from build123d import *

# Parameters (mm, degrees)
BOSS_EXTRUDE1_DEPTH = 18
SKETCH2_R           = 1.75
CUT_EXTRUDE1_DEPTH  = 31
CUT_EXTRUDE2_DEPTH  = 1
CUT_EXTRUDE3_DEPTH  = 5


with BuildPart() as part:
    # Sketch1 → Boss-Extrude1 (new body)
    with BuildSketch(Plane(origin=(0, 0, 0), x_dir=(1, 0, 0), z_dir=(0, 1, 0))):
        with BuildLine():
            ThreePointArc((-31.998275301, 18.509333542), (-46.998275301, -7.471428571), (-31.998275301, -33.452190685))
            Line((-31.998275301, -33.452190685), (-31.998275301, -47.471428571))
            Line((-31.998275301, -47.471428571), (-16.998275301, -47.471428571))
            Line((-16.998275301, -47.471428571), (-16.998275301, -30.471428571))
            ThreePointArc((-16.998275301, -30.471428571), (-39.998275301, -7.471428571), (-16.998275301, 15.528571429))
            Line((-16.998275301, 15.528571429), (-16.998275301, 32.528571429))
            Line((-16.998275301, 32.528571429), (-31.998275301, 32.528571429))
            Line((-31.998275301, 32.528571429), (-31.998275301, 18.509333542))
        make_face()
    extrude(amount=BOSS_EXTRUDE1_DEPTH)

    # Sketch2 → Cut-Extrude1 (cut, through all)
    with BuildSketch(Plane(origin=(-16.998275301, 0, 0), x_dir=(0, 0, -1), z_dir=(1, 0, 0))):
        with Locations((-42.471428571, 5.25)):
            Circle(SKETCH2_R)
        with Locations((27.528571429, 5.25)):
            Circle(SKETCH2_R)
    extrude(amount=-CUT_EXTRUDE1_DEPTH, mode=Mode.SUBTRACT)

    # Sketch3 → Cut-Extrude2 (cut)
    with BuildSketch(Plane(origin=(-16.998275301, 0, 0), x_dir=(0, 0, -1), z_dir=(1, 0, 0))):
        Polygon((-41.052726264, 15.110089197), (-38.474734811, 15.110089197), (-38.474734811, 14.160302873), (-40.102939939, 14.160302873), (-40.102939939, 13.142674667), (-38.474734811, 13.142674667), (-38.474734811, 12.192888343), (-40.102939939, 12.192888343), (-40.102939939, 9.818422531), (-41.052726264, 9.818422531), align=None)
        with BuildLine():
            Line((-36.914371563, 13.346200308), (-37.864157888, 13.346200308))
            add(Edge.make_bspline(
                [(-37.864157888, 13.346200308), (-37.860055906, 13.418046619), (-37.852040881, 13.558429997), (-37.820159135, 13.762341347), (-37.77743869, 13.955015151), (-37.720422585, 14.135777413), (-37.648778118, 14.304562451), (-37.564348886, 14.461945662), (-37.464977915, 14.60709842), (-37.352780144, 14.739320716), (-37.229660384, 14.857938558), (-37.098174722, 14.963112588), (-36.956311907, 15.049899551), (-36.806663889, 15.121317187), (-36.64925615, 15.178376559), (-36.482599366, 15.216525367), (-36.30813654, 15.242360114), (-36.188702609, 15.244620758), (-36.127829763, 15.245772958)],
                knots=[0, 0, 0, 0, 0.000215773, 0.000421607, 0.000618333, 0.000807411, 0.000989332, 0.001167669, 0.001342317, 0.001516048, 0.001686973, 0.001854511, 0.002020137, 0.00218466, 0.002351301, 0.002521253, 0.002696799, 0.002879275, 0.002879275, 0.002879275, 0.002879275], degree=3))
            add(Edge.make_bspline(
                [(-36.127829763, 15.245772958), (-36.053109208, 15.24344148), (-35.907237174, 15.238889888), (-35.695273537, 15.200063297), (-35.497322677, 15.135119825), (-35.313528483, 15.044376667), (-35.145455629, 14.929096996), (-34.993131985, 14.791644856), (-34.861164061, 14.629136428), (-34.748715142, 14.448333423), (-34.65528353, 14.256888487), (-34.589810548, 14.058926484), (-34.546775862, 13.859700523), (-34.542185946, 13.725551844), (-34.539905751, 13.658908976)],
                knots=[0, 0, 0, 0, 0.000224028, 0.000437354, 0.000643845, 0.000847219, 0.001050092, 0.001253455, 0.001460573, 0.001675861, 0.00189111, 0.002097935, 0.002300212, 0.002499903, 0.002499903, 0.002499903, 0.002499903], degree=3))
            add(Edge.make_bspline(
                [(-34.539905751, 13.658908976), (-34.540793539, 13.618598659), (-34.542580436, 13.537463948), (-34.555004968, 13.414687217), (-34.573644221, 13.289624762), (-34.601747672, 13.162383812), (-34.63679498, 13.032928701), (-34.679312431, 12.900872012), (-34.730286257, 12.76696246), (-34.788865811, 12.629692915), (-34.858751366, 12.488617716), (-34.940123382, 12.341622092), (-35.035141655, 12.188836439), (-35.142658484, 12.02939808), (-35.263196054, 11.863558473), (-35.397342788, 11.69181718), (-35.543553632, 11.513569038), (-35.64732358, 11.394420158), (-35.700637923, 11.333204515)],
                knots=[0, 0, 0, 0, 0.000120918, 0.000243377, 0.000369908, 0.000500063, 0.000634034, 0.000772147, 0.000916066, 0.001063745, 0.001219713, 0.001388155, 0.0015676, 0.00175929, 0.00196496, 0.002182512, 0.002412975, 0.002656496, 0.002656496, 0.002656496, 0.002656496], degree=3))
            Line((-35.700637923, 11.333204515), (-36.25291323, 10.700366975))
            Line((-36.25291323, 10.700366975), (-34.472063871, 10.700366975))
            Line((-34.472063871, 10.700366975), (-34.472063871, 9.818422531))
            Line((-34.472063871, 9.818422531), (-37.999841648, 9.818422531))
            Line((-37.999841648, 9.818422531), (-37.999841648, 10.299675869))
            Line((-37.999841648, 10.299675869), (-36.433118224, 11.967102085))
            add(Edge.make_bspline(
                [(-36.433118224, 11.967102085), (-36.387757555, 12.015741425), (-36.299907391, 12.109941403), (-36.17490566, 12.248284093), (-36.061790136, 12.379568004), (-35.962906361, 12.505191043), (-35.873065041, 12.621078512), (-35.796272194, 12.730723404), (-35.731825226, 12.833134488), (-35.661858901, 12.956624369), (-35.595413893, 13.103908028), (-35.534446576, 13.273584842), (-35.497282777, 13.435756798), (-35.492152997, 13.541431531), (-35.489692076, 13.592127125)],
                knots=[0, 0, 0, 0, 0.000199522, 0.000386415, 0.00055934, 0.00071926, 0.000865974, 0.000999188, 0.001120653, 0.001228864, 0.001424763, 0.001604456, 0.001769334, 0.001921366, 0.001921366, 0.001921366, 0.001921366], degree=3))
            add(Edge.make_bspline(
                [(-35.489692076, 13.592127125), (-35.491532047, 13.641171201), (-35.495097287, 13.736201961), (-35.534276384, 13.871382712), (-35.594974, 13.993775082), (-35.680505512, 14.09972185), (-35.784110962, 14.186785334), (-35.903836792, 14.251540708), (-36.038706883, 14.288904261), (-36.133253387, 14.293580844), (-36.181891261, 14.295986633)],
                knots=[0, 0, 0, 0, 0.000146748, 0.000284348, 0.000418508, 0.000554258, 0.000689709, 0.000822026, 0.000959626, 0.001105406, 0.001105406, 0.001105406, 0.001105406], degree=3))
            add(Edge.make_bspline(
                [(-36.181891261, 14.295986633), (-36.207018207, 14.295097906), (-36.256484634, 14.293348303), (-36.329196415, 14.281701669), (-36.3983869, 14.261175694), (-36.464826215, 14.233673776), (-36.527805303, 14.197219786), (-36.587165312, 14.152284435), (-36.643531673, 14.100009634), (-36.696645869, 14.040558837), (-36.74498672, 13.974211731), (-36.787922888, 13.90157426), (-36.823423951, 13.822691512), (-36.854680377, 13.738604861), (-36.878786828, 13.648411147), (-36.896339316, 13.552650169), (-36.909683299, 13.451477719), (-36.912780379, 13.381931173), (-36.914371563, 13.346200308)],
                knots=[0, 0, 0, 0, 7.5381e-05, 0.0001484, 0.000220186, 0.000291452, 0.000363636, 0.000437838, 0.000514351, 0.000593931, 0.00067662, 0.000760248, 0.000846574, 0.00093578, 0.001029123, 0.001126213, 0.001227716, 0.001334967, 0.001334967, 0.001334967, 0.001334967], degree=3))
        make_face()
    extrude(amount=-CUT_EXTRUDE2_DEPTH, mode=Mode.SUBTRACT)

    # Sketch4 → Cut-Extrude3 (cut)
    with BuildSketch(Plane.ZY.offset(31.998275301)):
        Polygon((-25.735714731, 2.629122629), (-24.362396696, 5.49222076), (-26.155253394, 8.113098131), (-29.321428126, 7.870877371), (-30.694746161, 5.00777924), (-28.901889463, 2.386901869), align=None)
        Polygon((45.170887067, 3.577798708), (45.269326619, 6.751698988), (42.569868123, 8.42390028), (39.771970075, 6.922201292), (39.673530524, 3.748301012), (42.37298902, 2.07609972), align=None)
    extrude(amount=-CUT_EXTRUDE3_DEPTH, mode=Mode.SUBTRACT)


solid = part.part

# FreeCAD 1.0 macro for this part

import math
import FreeCAD as App
import Part
import Sketcher

V = App.Vector
Q = App.Units.Quantity

doc = App.newDocument("Part")
body = doc.addObject("PartDesign::Body", "Body")

# Sketch on XZ plane
sketch1 = doc.addObject("Sketcher::SketchObject", "Sketch")
body.addObject(sketch1)
sketch1.AttachmentSupport = (doc.XZ_Plane, [""])
sketch1.MapMode = "FlatFace"
sketch1.addGeometry(Part.ArcOfCircle(Part.Circle(V(-17, 7, 0), V(0, 0, 1), 30), math.radians(120), math.radians(240)), False)
sketch1.addGeometry(Part.LineSegment(V(-32, 33, 0), V(-32, 47, 0)), False)
sketch1.addGeometry(Part.LineSegment(V(-32, 47, 0), V(-17, 47, 0)), False)
sketch1.addGeometry(Part.LineSegment(V(-17, 47, 0), V(-17, 30, 0)), False)
sketch1.addGeometry(Part.ArcOfCircle(Part.Circle(V(-17, 7, 0), V(0, 0, 1), 23), math.radians(90), math.radians(270)), False)
sketch1.addGeometry(Part.LineSegment(V(-17, -16, 0), V(-17, -33, 0)), False)
sketch1.addGeometry(Part.LineSegment(V(-17, -33, 0), V(-32, -33, 0)), False)
sketch1.addGeometry(Part.LineSegment(V(-32, -33, 0), V(-32, -19, 0)), False)
sketch1.addConstraint(Sketcher.Constraint("Coincident", 0, 1, 1, 1))
sketch1.addConstraint(Sketcher.Constraint("Coincident", 1, 2, 2, 1))
sketch1.addConstraint(Sketcher.Constraint("Coincident", 2, 2, 3, 1))
sketch1.addConstraint(Sketcher.Constraint("Coincident", 3, 2, 4, 1))
sketch1.addConstraint(Sketcher.Constraint("Coincident", 4, 2, 5, 1))
sketch1.addConstraint(Sketcher.Constraint("Coincident", 5, 2, 6, 1))
sketch1.addConstraint(Sketcher.Constraint("Coincident", 6, 2, 7, 1))
sketch1.addConstraint(Sketcher.Constraint("Coincident", 7, 2, 0, 2))
sketch1.addConstraint(Sketcher.Constraint("Vertical", 1))
sketch1.addConstraint(Sketcher.Constraint("Horizontal", 2))
sketch1.addConstraint(Sketcher.Constraint("Vertical", 3))
sketch1.addConstraint(Sketcher.Constraint("Vertical", 5))
sketch1.addConstraint(Sketcher.Constraint("Horizontal", 6))
sketch1.addConstraint(Sketcher.Constraint("Vertical", 7))
sketch1.addConstraint(Sketcher.Constraint("Coincident", 4, 3, 0, 3))
sketch1.addConstraint(Sketcher.Constraint("Vertical", 4, 3, 2, 2))
sketch1.addConstraint(Sketcher.Constraint("Vertical", 3, 2, 4, 2))
sketch1.addConstraint(Sketcher.Constraint("Vertical", 1, 2, 6, 2))
sketch1.addConstraint(Sketcher.Constraint("Equal", 3, 5))
sketch1.addConstraint(Sketcher.Constraint("Radius", 0, Q("30 mm")))
sketch1.addConstraint(Sketcher.Constraint("Radius", 4, Q("23 mm")))
sketch1.addConstraint(Sketcher.Constraint("DistanceX", 2, 1, 2, 2, Q("15 mm")))
sketch1.addConstraint(Sketcher.Constraint("DistanceY", 3, 2, 3, 1, Q("17 mm")))
sketch1.addConstraint(Sketcher.Constraint("DistanceY", -1, 1, 0, 3, Q("7.471429 mm")))
sketch1.addConstraint(Sketcher.Constraint("DistanceX", 0, 3, -1, 1, Q("16.998275 mm")))
pad1 = doc.addObject("PartDesign::Pad", "Pad")
body.addObject(pad1)
pad1.Profile = sketch1
pad1.Length = 18
pad1.Reversed = True

# Sketch on YZ plane
sketch2 = doc.addObject("Sketcher::SketchObject", "Sketch001")
body.addObject(sketch2)
sketch2.AttachmentSupport = (doc.YZ_Plane, [""])
sketch2.MapMode = "FlatFace"
sketch2.AttachmentOffset = App.Placement(V(0, 0, -16.998275), App.Rotation())
sketch2.addGeometry(Part.Circle(V(5.2, 42.5, 0), V(0, 0, 1), 1.8), False)
sketch2.addGeometry(Part.Circle(V(5.2, -27.5, 0), V(0, 0, 1), 1.8), False)
sketch2.addConstraint(Sketcher.Constraint("Equal", 0, 1))
sketch2.addConstraint(Sketcher.Constraint("Vertical", 0, 3, 1, 3))
sketch2.addConstraint(Sketcher.Constraint("Diameter", 0, Q("3.5 mm")))
sketch2.addConstraint(Sketcher.Constraint("DistanceY", 1, 3, 0, 3, Q("70 mm")))
sketch2.addConstraint(Sketcher.Constraint("DistanceX", -1, 1, 0, 3, Q("5.25 mm")))
sketch2.addConstraint(Sketcher.Constraint("DistanceY", -1, 1, 0, 3, Q("42.471429 mm")))
pocket1 = doc.addObject("PartDesign::Pocket", "Pocket")
body.addObject(pocket1)
pocket1.Profile = sketch2
pocket1.Type = "ThroughAll"

# Sketch on YZ plane
sketch3 = doc.addObject("Sketcher::SketchObject", "Sketch002")
body.addObject(sketch3)
sketch3.AttachmentSupport = (doc.YZ_Plane, [""])
sketch3.MapMode = "FlatFace"
sketch3.AttachmentOffset = App.Placement(V(0, 0, -16.998275), App.Rotation())
sketch3.addGeometry(Part.LineSegment(V(15.110089, 38.474735, 0), V(15.110089, 41.052726, 0)), False)
sketch3.addGeometry(Part.LineSegment(V(15.110089, 41.052726, 0), V(9.818423, 41.052726, 0)), False)
sketch3.addGeometry(Part.LineSegment(V(9.818423, 41.052726, 0), V(9.818423, 40.10294, 0)), False)
sketch3.addGeometry(Part.LineSegment(V(9.818423, 40.10294, 0), V(12.192888, 40.10294, 0)), False)
sketch3.addGeometry(Part.LineSegment(V(12.192888, 40.10294, 0), V(12.192888, 38.474735, 0)), False)
sketch3.addGeometry(Part.LineSegment(V(12.192888, 38.474735, 0), V(13.142675, 38.474735, 0)), False)
sketch3.addGeometry(Part.LineSegment(V(13.142675, 38.474735, 0), V(13.142675, 40.10294, 0)), False)
sketch3.addGeometry(Part.LineSegment(V(13.142675, 40.10294, 0), V(14.160303, 40.10294, 0)), False)
sketch3.addGeometry(Part.LineSegment(V(14.160303, 40.10294, 0), V(14.160303, 38.474735, 0)), False)
sketch3.addGeometry(Part.LineSegment(V(14.160303, 38.474735, 0), V(15.110089, 38.474735, 0)), False)
sketch3.addGeometry(Part.LineSegment(V(13.3462, 37.864158, 0), V(13.3462, 36.914372, 0)), False)
sketch3.addGeometry(Part.BSplineCurve([V(14.295987, 36.181891, 0), V(14.295098, 36.207018, 0), V(14.293348, 36.256485, 0), V(14.281702, 36.329196, 0), V(14.261176, 36.398387, 0), V(14.233674, 36.464826, 0), V(14.19722, 36.527805, 0), V(14.152284, 36.587165, 0), V(14.10001, 36.643532, 0), V(14.040559, 36.696646, 0), V(13.974212, 36.744987, 0), V(13.901574, 36.787923, 0), V(13.822692, 36.823424, 0), V(13.738605, 36.85468, 0), V(13.648411, 36.878787, 0), V(13.55265, 36.896339, 0), V(13.451478, 36.909683, 0), V(13.381931, 36.91278, 0), V(13.3462, 36.914372, 0)], [4, 1, 1, 1, 1, 1, 1, 1, 1, 1, 1, 1, 1, 1, 1, 1, 4], [0, 0.000075381, 0.0001484, 0.000220186, 0.000291452, 0.000363636, 0.000437838, 0.000514351, 0.000593931, 0.00067662, 0.000760248, 0.000846574, 0.00093578, 0.001029123, 0.001126213, 0.001227716, 0.001334967], False, 3, [1, 1, 1, 1, 1, 1, 1, 1, 1, 1, 1, 1, 1, 1, 1, 1, 1, 1, 1], False), False)
sketch3.addGeometry(Part.BSplineCurve([V(13.592127, 35.489692, 0), V(13.641171, 35.491532, 0), V(13.736202, 35.495097, 0), V(13.871383, 35.534276, 0), V(13.993775, 35.594974, 0), V(14.099722, 35.680506, 0), V(14.186785, 35.784111, 0), V(14.251541, 35.903837, 0), V(14.288904, 36.038707, 0), V(14.293581, 36.133253, 0), V(14.295987, 36.181891, 0)], [4, 1, 1, 1, 1, 1, 1, 1, 4], [0, 0.000146748, 0.000284348, 0.000418508, 0.000554258, 0.000689709, 0.000822026, 0.000959626, 0.001105406], False, 3, [1, 1, 1, 1, 1, 1, 1, 1, 1, 1, 1], False), False)
sketch3.addGeometry(Part.BSplineCurve([V(11.967102, 36.433118, 0), V(12.015741, 36.387758, 0), V(12.109941, 36.299907, 0), V(12.248284, 36.174906, 0), V(12.379568, 36.06179, 0), V(12.505191, 35.962906, 0), V(12.621079, 35.873065, 0), V(12.730723, 35.796272, 0), V(12.833134, 35.731825, 0), V(12.956624, 35.661859, 0), V(13.103908, 35.595414, 0), V(13.273585, 35.534447, 0), V(13.435757, 35.497283, 0), V(13.541432, 35.492153, 0), V(13.592127, 35.489692, 0)], [4, 1, 1, 1, 1, 1, 1, 1, 1, 1, 1, 1, 4], [0, 0.000199522, 0.000386415, 0.00055934, 0.00071926, 0.000865974, 0.000999188, 0.001120653, 0.001228864, 0.001424763, 0.001604456, 0.001769334, 0.001921366], False, 3, [1, 1, 1, 1, 1, 1, 1, 1, 1, 1, 1, 1, 1, 1, 1], False), False)
sketch3.addGeometry(Part.LineSegment(V(11.967102, 36.433118, 0), V(10.299676, 37.999842, 0)), False)
sketch3.addGeometry(Part.LineSegment(V(10.299676, 37.999842, 0), V(9.818423, 37.999842, 0)), False)
sketch3.addGeometry(Part.LineSegment(V(9.818423, 37.999842, 0), V(9.818423, 34.472064, 0)), False)
sketch3.addGeometry(Part.LineSegment(V(9.818423, 34.472064, 0), V(10.700367, 34.472064, 0)), False)
sketch3.addGeometry(Part.LineSegment(V(10.700367, 34.472064, 0), V(10.700367, 36.252913, 0)), False)
sketch3.addGeometry(Part.LineSegment(V(10.700367, 36.252913, 0), V(11.333205, 35.700638, 0)), False)
sketch3.addGeometry(Part.BSplineCurve([V(13.658909, 34.539906, 0), V(13.618599, 34.540794, 0), V(13.537464, 34.54258, 0), V(13.414687, 34.555005, 0), V(13.289625, 34.573644, 0), V(13.162384, 34.601748, 0), V(13.032929, 34.636795, 0), V(12.900872, 34.679312, 0), V(12.766962, 34.730286, 0), V(12.629693, 34.788866, 0), V(12.488618, 34.858751, 0), V(12.341622, 34.940123, 0), V(12.188836, 35.035142, 0), V(12.029398, 35.142658, 0), V(11.863558, 35.263196, 0), V(11.691817, 35.397343, 0), V(11.513569, 35.543554, 0), V(11.39442, 35.647324, 0), V(11.333205, 35.700638, 0)], [4, 1, 1, 1, 1, 1, 1, 1, 1, 1, 1, 1, 1, 1, 1, 1, 4], [0, 0.000120918, 0.000243377, 0.000369908, 0.000500063, 0.000634034, 0.000772147, 0.000916066, 0.001063745, 0.001219713, 0.001388155, 0.0015676, 0.00175929, 0.00196496, 0.002182512, 0.002412975, 0.002656496], False, 3, [1, 1, 1, 1, 1, 1, 1, 1, 1, 1, 1, 1, 1, 1, 1, 1, 1, 1, 1], False), False)
sketch3.addGeometry(Part.BSplineCurve([V(15.245773, 36.12783, 0), V(15.243441, 36.053109, 0), V(15.23889, 35.907237, 0), V(15.200063, 35.695274, 0), V(15.13512, 35.497323, 0), V(15.044377, 35.313528, 0), V(14.929097, 35.145456, 0), V(14.791645, 34.993132, 0), V(14.629136, 34.861164, 0), V(14.448333, 34.748715, 0), V(14.256888, 34.655284, 0), V(14.058926, 34.589811, 0), V(13.859701, 34.546776, 0), V(13.725552, 34.542186, 0), V(13.658909, 34.539906, 0)], [4, 1, 1, 1, 1, 1, 1, 1, 1, 1, 1, 1, 4], [0, 0.000224028, 0.000437354, 0.000643845, 0.000847219, 0.001050092, 0.001253455, 0.001460573, 0.001675861, 0.00189111, 0.002097935, 0.002300212, 0.002499903], False, 3, [1, 1, 1, 1, 1, 1, 1, 1, 1, 1, 1, 1, 1, 1, 1], False), False)
sketch3.addGeometry(Part.BSplineCurve([V(13.3462, 37.864158, 0), V(13.418047, 37.860056, 0), V(13.55843, 37.852041, 0), V(13.762341, 37.820159, 0), V(13.955015, 37.777439, 0), V(14.135777, 37.720423, 0), V(14.304562, 37.648778, 0), V(14.461946, 37.564349, 0), V(14.607098, 37.464978, 0), V(14.739321, 37.35278, 0), V(14.857939, 37.22966, 0), V(14.963113, 37.098175, 0), V(15.0499, 36.956312, 0), V(15.121317, 36.806664, 0), V(15.178377, 36.649256, 0), V(15.216525, 36.482599, 0), V(15.24236, 36.308137, 0), V(15.244621, 36.188703, 0), V(15.245773, 36.12783, 0)], [4, 1, 1, 1, 1, 1, 1, 1, 1, 1, 1, 1, 1, 1, 1, 1, 4], [0, 0.000215773, 0.000421607, 0.000618333, 0.000807411, 0.000989332, 0.001167669, 0.001342317, 0.001516048, 0.001686973, 0.001854511, 0.002020137, 0.00218466, 0.002351301, 0.002521253, 0.002696799, 0.002879275], False, 3, [1, 1, 1, 1, 1, 1, 1, 1, 1, 1, 1, 1, 1, 1, 1, 1, 1, 1, 1], False), False)
sketch3.addConstraint(Sketcher.Constraint("Block", 11))
sketch3.addConstraint(Sketcher.Constraint("Block", 12))
sketch3.addConstraint(Sketcher.Constraint("Block", 13))
sketch3.addConstraint(Sketcher.Constraint("Block", 20))
sketch3.addConstraint(Sketcher.Constraint("Block", 21))
sketch3.addConstraint(Sketcher.Constraint("Block", 22))
sketch3.addConstraint(Sketcher.Constraint("Coincident", 0, 2, 1, 1))
sketch3.addConstraint(Sketcher.Constraint("Coincident", 1, 2, 2, 1))
sketch3.addConstraint(Sketcher.Constraint("Coincident", 2, 2, 3, 1))
sketch3.addConstraint(Sketcher.Constraint("Coincident", 3, 2, 4, 1))
sketch3.addConstraint(Sketcher.Constraint("Coincident", 4, 2, 5, 1))
sketch3.addConstraint(Sketcher.Constraint("Coincident", 5, 2, 6, 1))
sketch3.addConstraint(Sketcher.Constraint("Coincident", 6, 2, 7, 1))
sketch3.addConstraint(Sketcher.Constraint("Coincident", 7, 2, 8, 1))
sketch3.addConstraint(Sketcher.Constraint("Coincident", 8, 2, 9, 1))
sketch3.addConstraint(Sketcher.Constraint("Coincident", 9, 2, 0, 1))
sketch3.addConstraint(Sketcher.Constraint("Coincident", 10, 2, 11, 2))
sketch3.addConstraint(Sketcher.Constraint("Coincident", 13, 1, 14, 1))
sketch3.addConstraint(Sketcher.Constraint("Coincident", 14, 2, 15, 1))
sketch3.addConstraint(Sketcher.Constraint("Coincident", 15, 2, 16, 1))
sketch3.addConstraint(Sketcher.Constraint("Coincident", 16, 2, 17, 1))
sketch3.addConstraint(Sketcher.Constraint("Coincident", 17, 2, 18, 1))
sketch3.addConstraint(Sketcher.Constraint("Coincident", 18, 2, 19, 1))
sketch3.addConstraint(Sketcher.Constraint("Coincident", 19, 2, 20, 2))
sketch3.addConstraint(Sketcher.Constraint("Coincident", 22, 1, 10, 1))
sketch3.addConstraint(Sketcher.Constraint("Vertical", 0))
sketch3.addConstraint(Sketcher.Constraint("Horizontal", 1))
sketch3.addConstraint(Sketcher.Constraint("Vertical", 2))
sketch3.addConstraint(Sketcher.Constraint("Horizontal", 3))
sketch3.addConstraint(Sketcher.Constraint("Vertical", 4))
sketch3.addConstraint(Sketcher.Constraint("Horizontal", 5))
sketch3.addConstraint(Sketcher.Constraint("Vertical", 6))
sketch3.addConstraint(Sketcher.Constraint("Horizontal", 7))
sketch3.addConstraint(Sketcher.Constraint("Vertical", 8))
sketch3.addConstraint(Sketcher.Constraint("Horizontal", 9))
sketch3.addConstraint(Sketcher.Constraint("Horizontal", 15))
sketch3.addConstraint(Sketcher.Constraint("Vertical", 16))
sketch3.addConstraint(Sketcher.Constraint("Horizontal", 17))
sketch3.addConstraint(Sketcher.Constraint("Vertical", 18))
sketch3.addConstraint(Sketcher.Constraint("Horizontal", 3, 2, 6, 2))
sketch3.addConstraint(Sketcher.Constraint("Horizontal", 5, 2, 8, 2))
sketch3.addConstraint(Sketcher.Constraint("Vertical", 2, 2, 15, 2))
sketch3.addConstraint(Sketcher.Constraint("Equal", 5, 9))
sketch3.addConstraint(Sketcher.Constraint("Equal", 9, 2))
sketch3.addConstraint(Sketcher.Constraint("Equal", 2, 10))
sketch3.addConstraint(Sketcher.Constraint("DistanceX", 14, 2, 5, 2, Q("2.842999 mm")))
sketch3.addConstraint(Sketcher.Constraint("DistanceX", 7, 1, 7, 2, Q("1.017628 mm")))
sketch3.addConstraint(Sketcher.Constraint("DistanceY", 0, 1, 0, 2, Q("2.577991 mm")))
sketch3.addConstraint(Sketcher.Constraint("DistanceY", 18, 1, 18, 2, Q("1.780849 mm")))
sketch3.addConstraint(Sketcher.Constraint("DistanceY", 14, 2, 2, 2, Q("2.103098 mm")))
sketch3.addConstraint(Sketcher.Constraint("DistanceX", 1, 2, 1, 1, Q("5.291667 mm")))
sketch3.addConstraint(Sketcher.Constraint("DistanceX", 17, 1, 17, 2, Q("0.881944 mm")))
sketch3.addConstraint(Sketcher.Constraint("DistanceY", 16, 2, 16, 1, Q("3.527778 mm")))
sketch3.addConstraint(Sketcher.Constraint("DistanceX", -1, 1, 0, 2, Q("15.110089 mm")))
sketch3.addConstraint(Sketcher.Constraint("DistanceY", -1, 1, 2, 2, Q("40.10294 mm")))
pocket2 = doc.addObject("PartDesign::Pocket", "Pocket001")
body.addObject(pocket2)
pocket2.Profile = sketch3
pocket2.Length = 1

# Sketch on YZ plane
sketch4 = doc.addObject("Sketcher::SketchObject", "Sketch003")
body.addObject(sketch4)
sketch4.AttachmentSupport = (doc.YZ_Plane, [""])
sketch4.MapMode = "FlatFace"
sketch4.AttachmentOffset = App.Placement(V(0, 0, -31.998275), App.Rotation())
sketch4.addGeometry(Part.LineSegment(V(2.6, -25.7, 0), V(5.5, -24.4, 0)), False)
sketch4.addGeometry(Part.LineSegment(V(5.5, -24.4, 0), V(8.1, -26.2, 0)), False)
sketch4.addGeometry(Part.LineSegment(V(8.1, -26.2, 0), V(7.9, -29.3, 0)), False)
sketch4.addGeometry(Part.LineSegment(V(7.9, -29.3, 0), V(5, -30.7, 0)), False)
sketch4.addGeometry(Part.LineSegment(V(5, -30.7, 0), V(2.4, -28.9, 0)), False)
sketch4.addGeometry(Part.LineSegment(V(2.4, -28.9, 0), V(2.6, -25.7, 0)), False)
sketch4.addGeometry(Part.LineSegment(V(3.6, 45.2, 0), V(6.8, 45.3, 0)), False)
sketch4.addGeometry(Part.LineSegment(V(6.8, 45.3, 0), V(8.4, 42.6, 0)), False)
sketch4.addGeometry(Part.LineSegment(V(8.4, 42.6, 0), V(6.9, 39.8, 0)), False)
sketch4.addGeometry(Part.LineSegment(V(6.9, 39.8, 0), V(3.7, 39.7, 0)), False)
sketch4.addGeometry(Part.LineSegment(V(3.7, 39.7, 0), V(2.1, 42.4, 0)), False)
sketch4.addGeometry(Part.LineSegment(V(2.1, 42.4, 0), V(3.6, 45.2, 0)), False)
sketch4.addConstraint(Sketcher.Constraint("Coincident", 0, 2, 1, 1))
sketch4.addConstraint(Sketcher.Constraint("Coincident", 1, 2, 2, 1))
sketch4.addConstraint(Sketcher.Constraint("Coincident", 2, 2, 3, 1))
sketch4.addConstraint(Sketcher.Constraint("Coincident", 3, 2, 4, 1))
sketch4.addConstraint(Sketcher.Constraint("Coincident", 4, 2, 5, 1))
sketch4.addConstraint(Sketcher.Constraint("Coincident", 5, 2, 0, 1))
sketch4.addConstraint(Sketcher.Constraint("Coincident", 6, 2, 7, 1))
sketch4.addConstraint(Sketcher.Constraint("Coincident", 7, 2, 8, 1))
sketch4.addConstraint(Sketcher.Constraint("Coincident", 8, 2, 9, 1))
sketch4.addConstraint(Sketcher.Constraint("Coincident", 9, 2, 10, 1))
sketch4.addConstraint(Sketcher.Constraint("Coincident", 10, 2, 11, 1))
sketch4.addConstraint(Sketcher.Constraint("Coincident", 11, 2, 6, 1))
sketch4.addConstraint(Sketcher.Constraint("Parallel", 0, 3))
sketch4.addConstraint(Sketcher.Constraint("Parallel", 1, 4))
sketch4.addConstraint(Sketcher.Constraint("Parallel", 2, 5))
sketch4.addConstraint(Sketcher.Constraint("Parallel", 6, 9))
sketch4.addConstraint(Sketcher.Constraint("Parallel", 7, 10))
sketch4.addConstraint(Sketcher.Constraint("Parallel", 8, 11))
sketch4.addConstraint(Sketcher.Constraint("Equal", 0, 1))
sketch4.addConstraint(Sketcher.Constraint("Equal", 1, 2))
sketch4.addConstraint(Sketcher.Constraint("Equal", 2, 3))
sketch4.addConstraint(Sketcher.Constraint("Equal", 5, 6))
sketch4.addConstraint(Sketcher.Constraint("Equal", 6, 7))
sketch4.addConstraint(Sketcher.Constraint("Equal", 7, 8))
sketch4.addConstraint(Sketcher.Constraint("Equal", 8, 9))
sketch4.addConstraint(Sketcher.Constraint("DistanceX", 4, 2, 7, 2, Q("6.036998 mm")))
sketch4.addConstraint(Sketcher.Constraint("DistanceX", -1, 1, 1, 2, Q("8.113098 mm")))
sketch4.addConstraint(Sketcher.Constraint("DistanceX", -1, 1, 4, 2, Q("2.386902 mm")))
sketch4.addConstraint(Sketcher.Constraint("DistanceX", -1, 1, 6, 2, Q("6.751699 mm")))
sketch4.addConstraint(Sketcher.Constraint("DistanceX", -1, 1, 8, 2, Q("6.922201 mm")))
sketch4.addConstraint(Sketcher.Constraint("DistanceX", -1, 1, 9, 2, Q("3.748301 mm")))
sketch4.addConstraint(Sketcher.Constraint("DistanceX", 3, 2, 2, 2, Q("2.863098 mm")))
sketch4.addConstraint(Sketcher.Constraint("DistanceY", 8, 2, 7, 2, Q("2.797898 mm")))
sketch4.addConstraint(Sketcher.Constraint("DistanceX", -1, 1, 0, 2, Q("5.492221 mm")))
sketch4.addConstraint(Sketcher.Constraint("DistanceY", 2, 2, -1, 1, Q("29.321428 mm")))
sketch4.addConstraint(Sketcher.Constraint("DistanceY", -1, 1, 7, 2, Q("42.569868 mm")))
pocket3 = doc.addObject("PartDesign::Pocket", "Pocket002")
body.addObject(pocket3)
pocket3.Profile = sketch4
pocket3.Length = 5
pocket3.Reversed = True

doc.recompute()
